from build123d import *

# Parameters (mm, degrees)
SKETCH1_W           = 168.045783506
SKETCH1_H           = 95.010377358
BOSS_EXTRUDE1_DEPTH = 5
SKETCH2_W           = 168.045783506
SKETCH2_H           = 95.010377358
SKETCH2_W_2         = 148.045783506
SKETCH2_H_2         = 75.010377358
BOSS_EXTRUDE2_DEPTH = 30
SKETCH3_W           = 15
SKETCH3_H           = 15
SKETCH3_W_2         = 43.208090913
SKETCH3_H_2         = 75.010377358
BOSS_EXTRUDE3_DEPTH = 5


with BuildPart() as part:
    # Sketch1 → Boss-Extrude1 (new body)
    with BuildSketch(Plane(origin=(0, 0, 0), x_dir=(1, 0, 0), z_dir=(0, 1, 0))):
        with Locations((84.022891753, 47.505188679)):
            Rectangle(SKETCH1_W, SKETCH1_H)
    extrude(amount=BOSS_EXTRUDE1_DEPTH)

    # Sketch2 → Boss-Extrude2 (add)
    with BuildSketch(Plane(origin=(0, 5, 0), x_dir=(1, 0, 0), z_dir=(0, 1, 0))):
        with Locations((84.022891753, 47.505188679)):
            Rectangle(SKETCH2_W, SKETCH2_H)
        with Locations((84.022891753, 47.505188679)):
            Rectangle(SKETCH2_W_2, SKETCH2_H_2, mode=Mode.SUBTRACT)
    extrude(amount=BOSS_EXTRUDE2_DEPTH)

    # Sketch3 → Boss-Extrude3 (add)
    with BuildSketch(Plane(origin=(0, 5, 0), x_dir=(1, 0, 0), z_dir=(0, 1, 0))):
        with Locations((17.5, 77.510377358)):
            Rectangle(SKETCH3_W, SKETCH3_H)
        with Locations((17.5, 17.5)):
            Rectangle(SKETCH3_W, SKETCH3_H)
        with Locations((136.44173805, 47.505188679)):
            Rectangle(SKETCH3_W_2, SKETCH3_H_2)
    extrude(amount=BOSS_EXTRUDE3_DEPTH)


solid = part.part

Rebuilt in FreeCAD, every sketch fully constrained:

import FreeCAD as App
import Part
import Sketcher
from FreeCAD import Vector


def add_polygon(sketch, points):
    """Adds a closed chain of lines whose ends are joined by coincident constraints."""
    first, n = sketch.GeometryCount, len(points)
    for a, b in zip(points, points[1:] + points[:1]):
        sketch.addGeometry(Part.LineSegment(App.Vector(*a, 0), App.Vector(*b, 0)), False)
    for i in range(n):
        sketch.addConstraint(Sketcher.Constraint("Coincident", first + i, 2, first + (i + 1) % n, 1))

doc = App.newDocument("Part")
body = doc.addObject("PartDesign::Body", "Body")

# Sketch on XZ plane
sketch1 = doc.addObject("Sketcher::SketchObject", "Sketch")
body.addObject(sketch1)
sketch1.AttachmentSupport = (doc.XZ_Plane, [""])
sketch1.MapMode = "FlatFace"
add_polygon(sketch1, [(0, -95), (0, 0), (168, 0), (168, -95)])  # lines 0-3
sketch1.addConstraint(Sketcher.Constraint("Vertical", 0))
sketch1.addConstraint(Sketcher.Constraint("Horizontal", 1))
sketch1.addConstraint(Sketcher.Constraint("Vertical", 2))
sketch1.addConstraint(Sketcher.Constraint("Horizontal", 3))
sketch1.addConstraint(Sketcher.Constraint("Coincident", 0, 2, -1, 1))
sketch1.addConstraint(Sketcher.Constraint("DistanceX", 1, 1, 1, 2, 168.045784))
sketch1.addConstraint(Sketcher.Constraint("DistanceY", 0, 1, 0, 2, 95.010377))
pad1 = doc.addObject("PartDesign::Pad", "Pad")
body.addObject(pad1)
pad1.Profile = sketch1
pad1.Length = 5
pad1.Reversed = True

# Sketch on XZ plane
sketch2 = doc.addObject("Sketcher::SketchObject", "Sketch001")
body.addObject(sketch2)
sketch2.AttachmentSupport = (doc.XZ_Plane, [""])
sketch2.MapMode = "FlatFace"
sketch2.AttachmentOffset = App.Placement(Vector(0, 0, -5), App.Rotation())
add_polygon(sketch2, [(0, -95), (0, 0), (168, 0), (168, -95)])  # lines 0-3
add_polygon(sketch2, [(158, -10), (10, -10), (10, -85), (158, -85)])  # lines 4-7
sketch2.addConstraint(Sketcher.Constraint("Vertical", 0))
sketch2.addConstraint(Sketcher.Constraint("Horizontal", 1))
sketch2.addConstraint(Sketcher.Constraint("Vertical", 2))
sketch2.addConstraint(Sketcher.Constraint("Horizontal", 3))
sketch2.addConstraint(Sketcher.Constraint("Horizontal", 4))
sketch2.addConstraint(Sketcher.Constraint("Vertical", 5))
sketch2.addConstraint(Sketcher.Constraint("Horizontal", 6))
sketch2.addConstraint(Sketcher.Constraint("Vertical", 7))
sketch2.addConstraint(Sketcher.Constraint("Coincident", 0, 2, -1, 1))
sketch2.addConstraint(Sketcher.Constraint("DistanceX", -1, 1, 4, 2, 10.0))
sketch2.addConstraint(Sketcher.Constraint("DistanceY", 4, 2, -1, 1, 10.0))
sketch2.addConstraint(Sketcher.Constraint("DistanceY", 3, 2, 5, 2, 10.0))
sketch2.addConstraint(Sketcher.Constraint("DistanceX", 6, 2, 2, 2, 10.0))
sketch2.addConstraint(Sketcher.Constraint("DistanceX", 1, 1, 1, 2, 168.045784))
sketch2.addConstraint(Sketcher.Constraint("DistanceY", 0, 1, 0, 2, 95.010377))
pad2 = doc.addObject("PartDesign::Pad", "Pad001")
body.addObject(pad2)
pad2.Profile = sketch2
pad2.Length = 30
pad2.Reversed = True

# Sketch on XZ plane
sketch3 = doc.addObject("Sketcher::SketchObject", "Sketch002")
body.addObject(sketch3)
sketch3.AttachmentSupport = (doc.XZ_Plane, [""])
sketch3.MapMode = "FlatFace"
sketch3.AttachmentOffset = App.Placement(Vector(0, 0, -5), App.Rotation())
add_polygon(sketch3, [(10, -85), (10, -70), (25, -70), (25, -85)])  # lines 0-3
add_polygon(sketch3, [(10, -25), (10, -10), (25, -10), (25, -25)])  # lines 4-7
add_polygon(sketch3, [(115, -85), (115, -10), (158, -10), (158, -85)])  # lines 8-11
sketch3.addConstraint(Sketcher.Constraint("Vertical", 0))
sketch3.addConstraint(Sketcher.Constraint("Horizontal", 1))
sketch3.addConstraint(Sketcher.Constraint("Vertical", 2))
sketch3.addConstraint(Sketcher.Constraint("Horizontal", 3))
sketch3.addConstraint(Sketcher.Constraint("Vertical", 4))
sketch3.addConstraint(Sketcher.Constraint("Horizontal", 5))
sketch3.addConstraint(Sketcher.Constraint("Vertical", 6))
sketch3.addConstraint(Sketcher.Constraint("Horizontal", 7))
sketch3.addConstraint(Sketcher.Constraint("Vertical", 8))
sketch3.addConstraint(Sketcher.Constraint("Horizontal", 9))
sketch3.addConstraint(Sketcher.Constraint("Vertical", 10))
sketch3.addConstraint(Sketcher.Constraint("Horizontal", 11))
sketch3.addConstraint(Sketcher.Constraint("Horizontal", 5, 2, 8, 2))
sketch3.addConstraint(Sketcher.Constraint("Horizontal", 3, 2, 10, 2))
sketch3.addConstraint(Sketcher.Constraint("Vertical", 3, 2, 4, 2))
sketch3.addConstraint(Sketcher.Constraint("Vertical", 2, 2, 5, 2))
sketch3.addConstraint(Sketcher.Constraint("Equal", 7, 0))
sketch3.addConstraint(Sketcher.Constraint("Equal", 2, 4))
sketch3.addConstraint(Sketcher.Constraint("DistanceX", 1, 1, 1, 2, 15.0))
sketch3.addConstraint(Sketcher.Constraint("DistanceX", -1, 1, 0, 2, 10.0))
sketch3.addConstraint(Sketcher.Constraint("DistanceY", 4, 2, -1, 1, 10.0))
sketch3.addConstraint(Sketcher.Constraint("DistanceX", 9, 1, 9, 2, 43.208091))
sketch3.addConstraint(Sketcher.Constraint("DistanceY", 8, 1, 8, 2, 75.010377))
sketch3.addConstraint(Sketcher.Constraint("DistanceX", -1, 1, 8, 2, 114.837693))
pad3 = doc.addObject("PartDesign::Pad", "Pad002")
body.addObject(pad3)
pad3.Profile = sketch3
pad3.Length = 5
pad3.Reversed = True

doc.recompute()
